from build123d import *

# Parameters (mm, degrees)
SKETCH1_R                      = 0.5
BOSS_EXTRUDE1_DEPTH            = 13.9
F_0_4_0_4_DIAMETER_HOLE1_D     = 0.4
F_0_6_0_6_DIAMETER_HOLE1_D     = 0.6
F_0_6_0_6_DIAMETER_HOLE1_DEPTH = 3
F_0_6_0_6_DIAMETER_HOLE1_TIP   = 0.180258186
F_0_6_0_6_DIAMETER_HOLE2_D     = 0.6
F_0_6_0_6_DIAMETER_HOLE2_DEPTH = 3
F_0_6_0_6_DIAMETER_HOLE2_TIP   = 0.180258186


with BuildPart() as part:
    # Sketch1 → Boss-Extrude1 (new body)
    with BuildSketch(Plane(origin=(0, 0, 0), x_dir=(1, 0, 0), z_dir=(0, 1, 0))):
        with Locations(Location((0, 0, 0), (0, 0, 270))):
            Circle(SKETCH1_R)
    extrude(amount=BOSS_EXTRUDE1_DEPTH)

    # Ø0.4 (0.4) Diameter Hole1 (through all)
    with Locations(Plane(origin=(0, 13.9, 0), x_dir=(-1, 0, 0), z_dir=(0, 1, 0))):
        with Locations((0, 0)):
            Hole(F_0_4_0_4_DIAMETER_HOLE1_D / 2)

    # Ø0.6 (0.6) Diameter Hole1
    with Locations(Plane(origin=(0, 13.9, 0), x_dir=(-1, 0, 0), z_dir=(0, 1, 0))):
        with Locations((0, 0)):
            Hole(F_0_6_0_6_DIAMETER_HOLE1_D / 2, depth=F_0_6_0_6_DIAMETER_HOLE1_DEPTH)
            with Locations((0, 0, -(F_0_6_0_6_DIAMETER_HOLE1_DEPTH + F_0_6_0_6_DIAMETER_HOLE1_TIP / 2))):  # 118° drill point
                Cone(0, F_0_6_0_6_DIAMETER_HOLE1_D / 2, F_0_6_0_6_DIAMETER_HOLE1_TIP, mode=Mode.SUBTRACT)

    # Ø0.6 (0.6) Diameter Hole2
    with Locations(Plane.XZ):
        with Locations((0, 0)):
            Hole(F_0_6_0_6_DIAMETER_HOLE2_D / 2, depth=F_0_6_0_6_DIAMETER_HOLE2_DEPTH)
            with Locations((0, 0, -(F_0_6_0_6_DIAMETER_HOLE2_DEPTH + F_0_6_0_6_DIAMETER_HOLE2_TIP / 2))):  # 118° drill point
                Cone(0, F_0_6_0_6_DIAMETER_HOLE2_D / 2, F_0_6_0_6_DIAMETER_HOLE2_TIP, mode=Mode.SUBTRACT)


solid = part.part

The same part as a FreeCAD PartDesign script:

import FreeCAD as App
import Part
import Sketcher
from FreeCAD import Vector
Q = App.Units.Quantity

doc = App.newDocument("Part")
body = doc.addObject("PartDesign::Body", "Body")

sketch1 = body.newObject("Sketcher::SketchObject", "Sketch")
sketch1.AttachmentSupport = (doc.getObject("XZ_Plane"), [""])
sketch1.MapMode = "FlatFace"
sketch1.addGeometry(Part.Circle(Vector(0, 0, 0), Vector(0, 0, 1), 0.5), False)
sketch1.addConstraint([
    Sketcher.Constraint("Coincident", 0, 3, -1, 1),
    Sketcher.Constraint("Diameter", 0, Q("1 mm")),
])
pad1 = body.newObject("PartDesign::Pad", "Pad")
pad1.Profile = sketch1
pad1.Length = 13.9
pad1.Reversed = True

sketch2 = body.newObject("Sketcher::SketchObject", "Sketch001")
sketch2.AttachmentSupport = (doc.getObject("XZ_Plane"), [""])
sketch2.MapMode = "FlatFace"
sketch2.AttachmentOffset = App.Placement(Vector(0, 0, -13.9), App.Rotation())
sketch2.addGeometry(Part.Circle(Vector(0, 0, 0), Vector(0, 0, 1), 0.2), False)
sketch2.addConstraint([
    Sketcher.Constraint("Coincident", 0, 3, -1, 1),
    Sketcher.Constraint("Diameter", 0, Q("0.4 mm")),
])
doc.recompute()
hole = body.newObject("PartDesign::Hole", "Hole")
hole.Profile = sketch2
hole.ThreadType = "None"
hole.Diameter = 0.4
hole.DepthType = "ThroughAll"
hole.Reversed = True

sketch3 = body.newObject("Sketcher::SketchObject", "Sketch002")
sketch3.AttachmentSupport = (doc.getObject("XZ_Plane"), [""])
sketch3.MapMode = "FlatFace"
sketch3.AttachmentOffset = App.Placement(Vector(0, 0, -13.9), App.Rotation())
sketch3.addGeometry(Part.Circle(Vector(0, 0, 0), Vector(0, 0, 1), 0.3), False)
sketch3.addConstraint([
    Sketcher.Constraint("Coincident", 0, 3, -1, 1),
    Sketcher.Constraint("Diameter", 0, Q("0.6 mm")),
])
doc.recompute()
hole2 = body.newObject("PartDesign::Hole", "Hole001")
hole2.Profile = sketch3
hole2.ThreadType = "None"
hole2.Diameter = 0.6
hole2.DepthType = "Dimension"
hole2.Depth = 3
hole2.DrillPoint = "Angled"
hole2.DrillPointAngle = 118
hole2.Reversed = True

sketch4 = body.newObject("Sketcher::SketchObject", "Sketch003")
sketch4.AttachmentSupport = (doc.getObject("XZ_Plane"), [""])
sketch4.MapMode = "FlatFace"
sketch4.addGeometry(Part.Circle(Vector(0, 0, 0), Vector(0, 0, 1), 0.3), False)
sketch4.addConstraint([
    Sketcher.Constraint("Coincident", 0, 3, -1, 1),
    Sketcher.Constraint("Diameter", 0, Q("0.6 mm")),
])
doc.recompute()
hole3 = body.newObject("PartDesign::Hole", "Hole002")
hole3.Profile = sketch4
hole3.ThreadType = "None"
hole3.Diameter = 0.6
hole3.DepthType = "Dimension"
hole3.Depth = 3
hole3.DrillPoint = "Angled"
hole3.DrillPointAngle = 118

doc.recompute()
